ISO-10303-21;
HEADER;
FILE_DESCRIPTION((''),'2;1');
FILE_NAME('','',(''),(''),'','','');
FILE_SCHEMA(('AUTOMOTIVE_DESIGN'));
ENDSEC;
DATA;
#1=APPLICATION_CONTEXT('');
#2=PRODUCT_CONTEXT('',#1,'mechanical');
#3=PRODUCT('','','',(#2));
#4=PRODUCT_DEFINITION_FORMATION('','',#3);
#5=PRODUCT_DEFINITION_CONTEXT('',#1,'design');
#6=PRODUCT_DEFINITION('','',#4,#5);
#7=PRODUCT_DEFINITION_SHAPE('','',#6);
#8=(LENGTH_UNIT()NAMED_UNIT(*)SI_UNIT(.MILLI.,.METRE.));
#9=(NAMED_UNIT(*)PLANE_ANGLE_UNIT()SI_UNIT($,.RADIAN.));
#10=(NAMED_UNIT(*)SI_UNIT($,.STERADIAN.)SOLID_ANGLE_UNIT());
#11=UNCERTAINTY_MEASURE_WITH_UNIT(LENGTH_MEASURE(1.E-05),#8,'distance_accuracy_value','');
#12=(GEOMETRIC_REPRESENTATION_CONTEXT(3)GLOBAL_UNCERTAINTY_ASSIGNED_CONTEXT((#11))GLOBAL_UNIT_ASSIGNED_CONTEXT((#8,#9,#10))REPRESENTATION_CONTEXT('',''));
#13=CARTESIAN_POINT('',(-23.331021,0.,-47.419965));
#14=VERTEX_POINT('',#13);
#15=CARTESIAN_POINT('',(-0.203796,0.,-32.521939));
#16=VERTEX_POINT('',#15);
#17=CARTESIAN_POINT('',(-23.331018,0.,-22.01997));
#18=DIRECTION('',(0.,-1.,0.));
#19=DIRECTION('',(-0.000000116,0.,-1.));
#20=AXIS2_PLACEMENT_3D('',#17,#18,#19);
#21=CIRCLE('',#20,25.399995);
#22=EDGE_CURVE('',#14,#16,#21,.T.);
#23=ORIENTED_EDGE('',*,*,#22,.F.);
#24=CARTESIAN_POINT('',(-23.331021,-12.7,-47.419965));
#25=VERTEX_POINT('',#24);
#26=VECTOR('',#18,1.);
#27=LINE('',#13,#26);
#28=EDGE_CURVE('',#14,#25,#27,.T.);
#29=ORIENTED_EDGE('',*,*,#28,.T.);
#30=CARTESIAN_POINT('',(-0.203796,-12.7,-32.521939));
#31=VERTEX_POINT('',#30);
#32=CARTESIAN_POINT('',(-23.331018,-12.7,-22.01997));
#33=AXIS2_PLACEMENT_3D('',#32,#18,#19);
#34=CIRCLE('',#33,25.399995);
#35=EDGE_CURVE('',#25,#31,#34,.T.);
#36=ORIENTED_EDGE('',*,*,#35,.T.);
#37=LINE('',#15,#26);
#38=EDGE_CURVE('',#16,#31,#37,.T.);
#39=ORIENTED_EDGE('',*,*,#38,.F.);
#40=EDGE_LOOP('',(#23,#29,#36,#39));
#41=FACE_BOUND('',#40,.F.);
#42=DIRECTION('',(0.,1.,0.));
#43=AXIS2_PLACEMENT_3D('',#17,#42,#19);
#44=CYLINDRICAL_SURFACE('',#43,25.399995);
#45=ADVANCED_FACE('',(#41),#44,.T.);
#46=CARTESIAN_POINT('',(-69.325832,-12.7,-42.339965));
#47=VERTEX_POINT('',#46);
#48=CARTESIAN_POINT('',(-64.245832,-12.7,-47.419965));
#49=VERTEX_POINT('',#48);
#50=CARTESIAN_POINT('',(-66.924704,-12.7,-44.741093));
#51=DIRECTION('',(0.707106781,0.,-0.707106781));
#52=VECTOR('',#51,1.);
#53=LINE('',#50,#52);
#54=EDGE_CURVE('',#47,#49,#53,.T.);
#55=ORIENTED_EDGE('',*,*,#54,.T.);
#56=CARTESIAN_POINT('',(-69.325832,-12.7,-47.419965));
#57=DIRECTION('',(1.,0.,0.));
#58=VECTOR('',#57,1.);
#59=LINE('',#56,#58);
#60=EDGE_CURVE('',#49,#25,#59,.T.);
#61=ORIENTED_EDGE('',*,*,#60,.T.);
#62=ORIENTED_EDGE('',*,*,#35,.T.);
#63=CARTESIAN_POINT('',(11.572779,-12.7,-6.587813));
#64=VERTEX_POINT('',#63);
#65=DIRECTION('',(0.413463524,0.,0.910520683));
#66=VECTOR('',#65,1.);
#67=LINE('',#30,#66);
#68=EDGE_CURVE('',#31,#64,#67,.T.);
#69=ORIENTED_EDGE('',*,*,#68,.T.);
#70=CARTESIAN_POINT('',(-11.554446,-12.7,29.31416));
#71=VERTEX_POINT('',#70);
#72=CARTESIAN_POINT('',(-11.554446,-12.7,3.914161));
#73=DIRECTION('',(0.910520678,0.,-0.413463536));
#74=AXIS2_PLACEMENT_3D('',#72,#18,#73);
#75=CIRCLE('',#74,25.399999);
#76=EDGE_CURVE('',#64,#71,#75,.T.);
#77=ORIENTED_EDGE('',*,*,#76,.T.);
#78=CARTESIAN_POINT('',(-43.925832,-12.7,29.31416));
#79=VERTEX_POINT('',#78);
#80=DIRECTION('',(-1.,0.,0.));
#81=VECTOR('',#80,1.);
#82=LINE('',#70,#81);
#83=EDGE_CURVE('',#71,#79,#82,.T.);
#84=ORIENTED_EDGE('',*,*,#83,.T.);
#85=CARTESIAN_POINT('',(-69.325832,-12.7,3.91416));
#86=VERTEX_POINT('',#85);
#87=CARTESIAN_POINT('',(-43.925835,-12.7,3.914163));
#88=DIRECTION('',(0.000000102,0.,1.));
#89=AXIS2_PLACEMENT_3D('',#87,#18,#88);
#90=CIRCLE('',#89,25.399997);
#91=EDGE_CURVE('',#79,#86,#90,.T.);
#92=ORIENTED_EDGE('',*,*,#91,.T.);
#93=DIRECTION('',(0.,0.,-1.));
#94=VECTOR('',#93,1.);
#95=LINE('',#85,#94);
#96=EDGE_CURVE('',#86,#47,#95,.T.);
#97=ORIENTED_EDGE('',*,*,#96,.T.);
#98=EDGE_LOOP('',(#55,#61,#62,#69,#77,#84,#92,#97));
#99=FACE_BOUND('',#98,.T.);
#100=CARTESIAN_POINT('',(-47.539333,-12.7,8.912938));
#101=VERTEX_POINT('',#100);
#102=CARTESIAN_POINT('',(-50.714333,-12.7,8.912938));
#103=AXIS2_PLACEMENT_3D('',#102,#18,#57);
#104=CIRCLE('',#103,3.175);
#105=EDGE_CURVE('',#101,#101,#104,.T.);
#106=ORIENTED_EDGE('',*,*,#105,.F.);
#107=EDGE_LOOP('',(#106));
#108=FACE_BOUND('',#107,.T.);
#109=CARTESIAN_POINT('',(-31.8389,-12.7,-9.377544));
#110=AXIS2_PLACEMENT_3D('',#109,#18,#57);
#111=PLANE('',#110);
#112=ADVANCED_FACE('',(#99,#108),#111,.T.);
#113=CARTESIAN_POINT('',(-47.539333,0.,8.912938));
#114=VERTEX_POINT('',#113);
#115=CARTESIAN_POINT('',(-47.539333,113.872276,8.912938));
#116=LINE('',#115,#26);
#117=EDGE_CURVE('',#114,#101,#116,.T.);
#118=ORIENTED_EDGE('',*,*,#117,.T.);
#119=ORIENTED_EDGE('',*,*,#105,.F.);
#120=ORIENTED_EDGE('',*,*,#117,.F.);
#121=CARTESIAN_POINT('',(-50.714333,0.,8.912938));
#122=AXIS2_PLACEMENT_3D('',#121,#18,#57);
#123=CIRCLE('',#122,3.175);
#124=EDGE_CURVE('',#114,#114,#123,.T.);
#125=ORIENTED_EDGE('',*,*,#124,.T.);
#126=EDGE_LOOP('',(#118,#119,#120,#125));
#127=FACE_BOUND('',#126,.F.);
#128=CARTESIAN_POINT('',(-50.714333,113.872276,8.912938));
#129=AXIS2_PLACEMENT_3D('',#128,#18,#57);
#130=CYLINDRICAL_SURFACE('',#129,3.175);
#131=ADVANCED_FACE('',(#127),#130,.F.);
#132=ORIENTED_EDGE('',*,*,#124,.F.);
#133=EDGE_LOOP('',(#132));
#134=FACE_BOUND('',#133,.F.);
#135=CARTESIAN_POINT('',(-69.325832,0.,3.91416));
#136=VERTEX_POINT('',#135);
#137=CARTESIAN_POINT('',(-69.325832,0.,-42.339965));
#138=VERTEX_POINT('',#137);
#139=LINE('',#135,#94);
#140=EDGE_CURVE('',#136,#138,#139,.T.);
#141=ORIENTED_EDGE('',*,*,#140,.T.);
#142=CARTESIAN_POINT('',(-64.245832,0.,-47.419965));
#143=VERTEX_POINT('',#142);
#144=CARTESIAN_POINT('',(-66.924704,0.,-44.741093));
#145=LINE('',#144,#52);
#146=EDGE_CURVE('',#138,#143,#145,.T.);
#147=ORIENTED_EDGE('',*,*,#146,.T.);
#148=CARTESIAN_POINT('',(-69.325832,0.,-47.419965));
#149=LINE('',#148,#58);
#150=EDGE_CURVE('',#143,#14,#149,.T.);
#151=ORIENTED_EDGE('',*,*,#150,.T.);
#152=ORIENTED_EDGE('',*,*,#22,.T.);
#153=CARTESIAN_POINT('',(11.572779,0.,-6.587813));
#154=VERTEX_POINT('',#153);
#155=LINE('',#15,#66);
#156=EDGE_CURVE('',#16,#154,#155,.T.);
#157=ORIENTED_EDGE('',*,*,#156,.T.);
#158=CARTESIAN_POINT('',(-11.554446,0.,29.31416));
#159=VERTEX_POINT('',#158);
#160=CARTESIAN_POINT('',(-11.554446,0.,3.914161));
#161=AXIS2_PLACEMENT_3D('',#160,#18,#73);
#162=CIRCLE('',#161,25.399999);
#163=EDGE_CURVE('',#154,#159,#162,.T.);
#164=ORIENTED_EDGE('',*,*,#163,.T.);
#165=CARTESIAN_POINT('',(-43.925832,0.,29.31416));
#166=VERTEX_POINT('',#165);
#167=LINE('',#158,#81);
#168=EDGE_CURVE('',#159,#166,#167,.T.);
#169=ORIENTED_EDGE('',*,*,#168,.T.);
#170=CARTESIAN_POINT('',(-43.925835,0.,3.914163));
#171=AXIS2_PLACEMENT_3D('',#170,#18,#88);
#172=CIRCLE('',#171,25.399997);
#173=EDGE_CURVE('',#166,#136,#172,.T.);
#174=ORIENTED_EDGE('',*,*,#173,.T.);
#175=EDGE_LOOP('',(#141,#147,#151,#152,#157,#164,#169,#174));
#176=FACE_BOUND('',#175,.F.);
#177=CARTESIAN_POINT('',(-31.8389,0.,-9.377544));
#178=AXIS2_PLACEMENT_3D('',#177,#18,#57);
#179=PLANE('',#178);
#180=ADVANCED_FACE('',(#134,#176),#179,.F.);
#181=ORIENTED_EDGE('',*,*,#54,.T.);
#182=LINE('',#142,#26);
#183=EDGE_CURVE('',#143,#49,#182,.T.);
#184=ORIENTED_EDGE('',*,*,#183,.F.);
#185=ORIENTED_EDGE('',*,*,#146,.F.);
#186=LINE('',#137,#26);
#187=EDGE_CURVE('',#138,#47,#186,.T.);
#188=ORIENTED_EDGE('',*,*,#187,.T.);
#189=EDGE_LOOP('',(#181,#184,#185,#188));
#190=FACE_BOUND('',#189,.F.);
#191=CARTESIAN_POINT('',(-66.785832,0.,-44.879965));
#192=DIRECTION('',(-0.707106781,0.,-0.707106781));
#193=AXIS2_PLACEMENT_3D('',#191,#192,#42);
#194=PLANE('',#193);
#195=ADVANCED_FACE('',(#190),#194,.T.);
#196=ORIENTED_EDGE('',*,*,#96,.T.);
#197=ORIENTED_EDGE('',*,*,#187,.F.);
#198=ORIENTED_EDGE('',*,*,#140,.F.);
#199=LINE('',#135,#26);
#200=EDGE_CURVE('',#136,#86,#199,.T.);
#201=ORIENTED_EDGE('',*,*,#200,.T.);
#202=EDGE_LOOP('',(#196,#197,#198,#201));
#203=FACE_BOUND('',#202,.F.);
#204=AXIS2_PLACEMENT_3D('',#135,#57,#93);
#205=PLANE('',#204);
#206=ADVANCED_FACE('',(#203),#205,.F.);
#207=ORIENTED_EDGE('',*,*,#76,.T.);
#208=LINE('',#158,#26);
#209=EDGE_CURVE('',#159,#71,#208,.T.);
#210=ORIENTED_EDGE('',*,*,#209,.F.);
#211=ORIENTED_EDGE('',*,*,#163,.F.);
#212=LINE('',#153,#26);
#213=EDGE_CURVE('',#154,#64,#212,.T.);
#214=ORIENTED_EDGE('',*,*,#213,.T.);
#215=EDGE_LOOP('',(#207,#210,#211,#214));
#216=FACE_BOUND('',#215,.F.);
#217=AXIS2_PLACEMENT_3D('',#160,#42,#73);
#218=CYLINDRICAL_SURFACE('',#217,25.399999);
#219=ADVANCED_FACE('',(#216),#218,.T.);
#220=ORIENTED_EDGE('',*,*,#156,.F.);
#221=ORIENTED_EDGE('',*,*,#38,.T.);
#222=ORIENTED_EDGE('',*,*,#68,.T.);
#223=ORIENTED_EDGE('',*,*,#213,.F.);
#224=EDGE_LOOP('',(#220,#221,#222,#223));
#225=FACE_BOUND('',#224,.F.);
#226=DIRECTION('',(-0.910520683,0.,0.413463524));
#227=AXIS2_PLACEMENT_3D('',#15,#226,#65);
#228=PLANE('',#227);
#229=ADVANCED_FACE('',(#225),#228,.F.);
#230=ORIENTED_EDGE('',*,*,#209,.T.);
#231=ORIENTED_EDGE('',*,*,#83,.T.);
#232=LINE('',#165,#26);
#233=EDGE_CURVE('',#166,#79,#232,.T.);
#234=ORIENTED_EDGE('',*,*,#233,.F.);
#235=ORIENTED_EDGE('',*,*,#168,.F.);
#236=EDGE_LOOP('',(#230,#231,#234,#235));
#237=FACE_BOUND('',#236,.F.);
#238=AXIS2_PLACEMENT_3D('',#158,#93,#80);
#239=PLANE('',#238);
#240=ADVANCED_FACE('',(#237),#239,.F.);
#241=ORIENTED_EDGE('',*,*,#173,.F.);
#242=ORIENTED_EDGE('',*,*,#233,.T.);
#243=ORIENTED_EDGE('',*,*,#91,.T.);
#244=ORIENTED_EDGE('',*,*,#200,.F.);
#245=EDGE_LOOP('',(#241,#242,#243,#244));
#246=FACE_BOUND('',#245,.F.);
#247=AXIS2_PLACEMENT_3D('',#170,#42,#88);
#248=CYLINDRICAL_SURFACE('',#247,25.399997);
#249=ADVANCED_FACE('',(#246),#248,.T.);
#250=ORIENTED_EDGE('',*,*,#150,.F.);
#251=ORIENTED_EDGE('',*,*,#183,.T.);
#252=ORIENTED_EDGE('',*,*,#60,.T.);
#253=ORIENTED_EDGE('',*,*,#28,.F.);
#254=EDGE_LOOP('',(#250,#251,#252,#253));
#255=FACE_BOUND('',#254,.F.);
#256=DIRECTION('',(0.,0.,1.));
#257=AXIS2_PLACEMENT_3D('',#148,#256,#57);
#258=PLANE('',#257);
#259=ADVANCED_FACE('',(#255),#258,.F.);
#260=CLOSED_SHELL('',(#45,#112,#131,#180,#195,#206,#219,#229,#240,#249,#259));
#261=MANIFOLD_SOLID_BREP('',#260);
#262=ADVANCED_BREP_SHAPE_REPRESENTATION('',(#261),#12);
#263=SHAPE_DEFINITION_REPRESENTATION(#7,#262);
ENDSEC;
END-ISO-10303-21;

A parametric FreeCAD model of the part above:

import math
import FreeCAD as App
import Part
import Sketcher
from FreeCAD import Vector
Q = App.Units.Quantity


def edges_at(feature, points):
    """Names of the edges that pass closest to the given points."""
    edges = feature.Shape.Edges
    near = lambda p: min(range(len(edges)), key=lambda i: edges[i].distToShape(Part.Vertex(*p))[0])
    return sorted({f"Edge{near(p) + 1}" for p in points})

doc = App.newDocument("Part")
body = doc.addObject("PartDesign::Body", "Body")

sketch1 = body.newObject("Sketcher::SketchObject", "Sketch")
sketch1.AttachmentSupport = (doc.getObject("XZ_Plane"), [""])
sketch1.MapMode = "FlatFace"
sketch1.addGeometry([
    Part.ArcOfCircle(Part.Circle(Vector(-44, 4, 0), Vector(0, 0, 1), 25), math.radians(90), math.radians(180)),
    Part.LineSegment(Vector(-69, 4, 0), Vector(-69, -47, 0)),
    Part.LineSegment(Vector(-69, -47, 0), Vector(-23, -47, 0)),
    Part.ArcOfCircle(Part.Circle(Vector(-23, -22, 0), Vector(0, 0, 1), 25), math.radians(-90), math.radians(-24)),
    Part.LineSegment(Vector(0, -33, 0), Vector(12, -7, 0)),
    Part.ArcOfCircle(Part.Circle(Vector(-12, 4, 0), Vector(0, 0, 1), 25), math.radians(-24), math.radians(90)),
    Part.LineSegment(Vector(-12, 29, 0), Vector(-44, 29, 0)),
], False)
sketch1.addConstraint([
    Sketcher.Constraint("Tangent", 0, 2, 1, 1),
    Sketcher.Constraint("Coincident", 1, 2, 2, 1),
    Sketcher.Constraint("Tangent", 2, 2, 3, 1),
    Sketcher.Constraint("Tangent", 3, 2, 4, 1),
    Sketcher.Constraint("Tangent", 4, 2, 5, 1),
    Sketcher.Constraint("Tangent", 5, 2, 6, 1),
    Sketcher.Constraint("Tangent", 6, 2, 0, 1),
    Sketcher.Constraint("Vertical", 1),
    Sketcher.Constraint("Horizontal", 2),
    Sketcher.Constraint("Horizontal", 6),
    Sketcher.Constraint("Horizontal", 5, 3, 0, 2),
    Sketcher.Constraint("Radius", 0, Q("0.9999999 in")),
    Sketcher.Constraint("Radius", 3, Q("0.9999998 in")),
    Sketcher.Constraint("DistanceX", 2, 1, 2, 2, Q("45.994811 mm")),
    Sketcher.Constraint("DistanceY", 3, 2, 5, 3, Q("36.4361 mm")),
    Sketcher.Constraint("DistanceX", 2, 2, 4, 2, Q("34.9038 mm")),
    Sketcher.Constraint("DistanceX", 3, 3, -1, 1, Q("23.331018 mm")),
    Sketcher.Constraint("DistanceY", 3, 3, -1, 1, Q("22.01997 mm")),
])
pad1 = body.newObject("PartDesign::Pad", "Pad")
pad1.Profile = sketch1
pad1.Length = Q("0.5 in")

sketch2 = body.newObject("Sketcher::SketchObject", "Sketch001")
sketch2.AttachmentSupport = (doc.getObject("XZ_Plane"), [""])
sketch2.MapMode = "FlatFace"
sketch2.addGeometry(Part.Circle(Vector(-50.7, 8.9, 0), Vector(0, 0, 1), 3.2), False)
sketch2.addConstraint([
    Sketcher.Constraint("Diameter", 0, Q("0.25 in")),
    Sketcher.Constraint("DistanceX", 0, 3, -1, 1, Q("50.714333 mm")),
    Sketcher.Constraint("DistanceY", -1, 1, 0, 3, Q("8.912938 mm")),
])
doc.recompute()
hole = body.newObject("PartDesign::Hole", "Hole")
hole.Profile = sketch2
hole.ThreadType = "None"
hole.Diameter = Q("0.25 in")
hole.DepthType = "ThroughAll"
hole.Reversed = True
doc.recompute()

chamfer = body.newObject("PartDesign::Chamfer", "Chamfer")
chamfer.Base = (hole, edges_at(hole, [(-69.326, -6.35, -47.42)]))
chamfer.Size = Q("0.2 in")

doc.recompute()
